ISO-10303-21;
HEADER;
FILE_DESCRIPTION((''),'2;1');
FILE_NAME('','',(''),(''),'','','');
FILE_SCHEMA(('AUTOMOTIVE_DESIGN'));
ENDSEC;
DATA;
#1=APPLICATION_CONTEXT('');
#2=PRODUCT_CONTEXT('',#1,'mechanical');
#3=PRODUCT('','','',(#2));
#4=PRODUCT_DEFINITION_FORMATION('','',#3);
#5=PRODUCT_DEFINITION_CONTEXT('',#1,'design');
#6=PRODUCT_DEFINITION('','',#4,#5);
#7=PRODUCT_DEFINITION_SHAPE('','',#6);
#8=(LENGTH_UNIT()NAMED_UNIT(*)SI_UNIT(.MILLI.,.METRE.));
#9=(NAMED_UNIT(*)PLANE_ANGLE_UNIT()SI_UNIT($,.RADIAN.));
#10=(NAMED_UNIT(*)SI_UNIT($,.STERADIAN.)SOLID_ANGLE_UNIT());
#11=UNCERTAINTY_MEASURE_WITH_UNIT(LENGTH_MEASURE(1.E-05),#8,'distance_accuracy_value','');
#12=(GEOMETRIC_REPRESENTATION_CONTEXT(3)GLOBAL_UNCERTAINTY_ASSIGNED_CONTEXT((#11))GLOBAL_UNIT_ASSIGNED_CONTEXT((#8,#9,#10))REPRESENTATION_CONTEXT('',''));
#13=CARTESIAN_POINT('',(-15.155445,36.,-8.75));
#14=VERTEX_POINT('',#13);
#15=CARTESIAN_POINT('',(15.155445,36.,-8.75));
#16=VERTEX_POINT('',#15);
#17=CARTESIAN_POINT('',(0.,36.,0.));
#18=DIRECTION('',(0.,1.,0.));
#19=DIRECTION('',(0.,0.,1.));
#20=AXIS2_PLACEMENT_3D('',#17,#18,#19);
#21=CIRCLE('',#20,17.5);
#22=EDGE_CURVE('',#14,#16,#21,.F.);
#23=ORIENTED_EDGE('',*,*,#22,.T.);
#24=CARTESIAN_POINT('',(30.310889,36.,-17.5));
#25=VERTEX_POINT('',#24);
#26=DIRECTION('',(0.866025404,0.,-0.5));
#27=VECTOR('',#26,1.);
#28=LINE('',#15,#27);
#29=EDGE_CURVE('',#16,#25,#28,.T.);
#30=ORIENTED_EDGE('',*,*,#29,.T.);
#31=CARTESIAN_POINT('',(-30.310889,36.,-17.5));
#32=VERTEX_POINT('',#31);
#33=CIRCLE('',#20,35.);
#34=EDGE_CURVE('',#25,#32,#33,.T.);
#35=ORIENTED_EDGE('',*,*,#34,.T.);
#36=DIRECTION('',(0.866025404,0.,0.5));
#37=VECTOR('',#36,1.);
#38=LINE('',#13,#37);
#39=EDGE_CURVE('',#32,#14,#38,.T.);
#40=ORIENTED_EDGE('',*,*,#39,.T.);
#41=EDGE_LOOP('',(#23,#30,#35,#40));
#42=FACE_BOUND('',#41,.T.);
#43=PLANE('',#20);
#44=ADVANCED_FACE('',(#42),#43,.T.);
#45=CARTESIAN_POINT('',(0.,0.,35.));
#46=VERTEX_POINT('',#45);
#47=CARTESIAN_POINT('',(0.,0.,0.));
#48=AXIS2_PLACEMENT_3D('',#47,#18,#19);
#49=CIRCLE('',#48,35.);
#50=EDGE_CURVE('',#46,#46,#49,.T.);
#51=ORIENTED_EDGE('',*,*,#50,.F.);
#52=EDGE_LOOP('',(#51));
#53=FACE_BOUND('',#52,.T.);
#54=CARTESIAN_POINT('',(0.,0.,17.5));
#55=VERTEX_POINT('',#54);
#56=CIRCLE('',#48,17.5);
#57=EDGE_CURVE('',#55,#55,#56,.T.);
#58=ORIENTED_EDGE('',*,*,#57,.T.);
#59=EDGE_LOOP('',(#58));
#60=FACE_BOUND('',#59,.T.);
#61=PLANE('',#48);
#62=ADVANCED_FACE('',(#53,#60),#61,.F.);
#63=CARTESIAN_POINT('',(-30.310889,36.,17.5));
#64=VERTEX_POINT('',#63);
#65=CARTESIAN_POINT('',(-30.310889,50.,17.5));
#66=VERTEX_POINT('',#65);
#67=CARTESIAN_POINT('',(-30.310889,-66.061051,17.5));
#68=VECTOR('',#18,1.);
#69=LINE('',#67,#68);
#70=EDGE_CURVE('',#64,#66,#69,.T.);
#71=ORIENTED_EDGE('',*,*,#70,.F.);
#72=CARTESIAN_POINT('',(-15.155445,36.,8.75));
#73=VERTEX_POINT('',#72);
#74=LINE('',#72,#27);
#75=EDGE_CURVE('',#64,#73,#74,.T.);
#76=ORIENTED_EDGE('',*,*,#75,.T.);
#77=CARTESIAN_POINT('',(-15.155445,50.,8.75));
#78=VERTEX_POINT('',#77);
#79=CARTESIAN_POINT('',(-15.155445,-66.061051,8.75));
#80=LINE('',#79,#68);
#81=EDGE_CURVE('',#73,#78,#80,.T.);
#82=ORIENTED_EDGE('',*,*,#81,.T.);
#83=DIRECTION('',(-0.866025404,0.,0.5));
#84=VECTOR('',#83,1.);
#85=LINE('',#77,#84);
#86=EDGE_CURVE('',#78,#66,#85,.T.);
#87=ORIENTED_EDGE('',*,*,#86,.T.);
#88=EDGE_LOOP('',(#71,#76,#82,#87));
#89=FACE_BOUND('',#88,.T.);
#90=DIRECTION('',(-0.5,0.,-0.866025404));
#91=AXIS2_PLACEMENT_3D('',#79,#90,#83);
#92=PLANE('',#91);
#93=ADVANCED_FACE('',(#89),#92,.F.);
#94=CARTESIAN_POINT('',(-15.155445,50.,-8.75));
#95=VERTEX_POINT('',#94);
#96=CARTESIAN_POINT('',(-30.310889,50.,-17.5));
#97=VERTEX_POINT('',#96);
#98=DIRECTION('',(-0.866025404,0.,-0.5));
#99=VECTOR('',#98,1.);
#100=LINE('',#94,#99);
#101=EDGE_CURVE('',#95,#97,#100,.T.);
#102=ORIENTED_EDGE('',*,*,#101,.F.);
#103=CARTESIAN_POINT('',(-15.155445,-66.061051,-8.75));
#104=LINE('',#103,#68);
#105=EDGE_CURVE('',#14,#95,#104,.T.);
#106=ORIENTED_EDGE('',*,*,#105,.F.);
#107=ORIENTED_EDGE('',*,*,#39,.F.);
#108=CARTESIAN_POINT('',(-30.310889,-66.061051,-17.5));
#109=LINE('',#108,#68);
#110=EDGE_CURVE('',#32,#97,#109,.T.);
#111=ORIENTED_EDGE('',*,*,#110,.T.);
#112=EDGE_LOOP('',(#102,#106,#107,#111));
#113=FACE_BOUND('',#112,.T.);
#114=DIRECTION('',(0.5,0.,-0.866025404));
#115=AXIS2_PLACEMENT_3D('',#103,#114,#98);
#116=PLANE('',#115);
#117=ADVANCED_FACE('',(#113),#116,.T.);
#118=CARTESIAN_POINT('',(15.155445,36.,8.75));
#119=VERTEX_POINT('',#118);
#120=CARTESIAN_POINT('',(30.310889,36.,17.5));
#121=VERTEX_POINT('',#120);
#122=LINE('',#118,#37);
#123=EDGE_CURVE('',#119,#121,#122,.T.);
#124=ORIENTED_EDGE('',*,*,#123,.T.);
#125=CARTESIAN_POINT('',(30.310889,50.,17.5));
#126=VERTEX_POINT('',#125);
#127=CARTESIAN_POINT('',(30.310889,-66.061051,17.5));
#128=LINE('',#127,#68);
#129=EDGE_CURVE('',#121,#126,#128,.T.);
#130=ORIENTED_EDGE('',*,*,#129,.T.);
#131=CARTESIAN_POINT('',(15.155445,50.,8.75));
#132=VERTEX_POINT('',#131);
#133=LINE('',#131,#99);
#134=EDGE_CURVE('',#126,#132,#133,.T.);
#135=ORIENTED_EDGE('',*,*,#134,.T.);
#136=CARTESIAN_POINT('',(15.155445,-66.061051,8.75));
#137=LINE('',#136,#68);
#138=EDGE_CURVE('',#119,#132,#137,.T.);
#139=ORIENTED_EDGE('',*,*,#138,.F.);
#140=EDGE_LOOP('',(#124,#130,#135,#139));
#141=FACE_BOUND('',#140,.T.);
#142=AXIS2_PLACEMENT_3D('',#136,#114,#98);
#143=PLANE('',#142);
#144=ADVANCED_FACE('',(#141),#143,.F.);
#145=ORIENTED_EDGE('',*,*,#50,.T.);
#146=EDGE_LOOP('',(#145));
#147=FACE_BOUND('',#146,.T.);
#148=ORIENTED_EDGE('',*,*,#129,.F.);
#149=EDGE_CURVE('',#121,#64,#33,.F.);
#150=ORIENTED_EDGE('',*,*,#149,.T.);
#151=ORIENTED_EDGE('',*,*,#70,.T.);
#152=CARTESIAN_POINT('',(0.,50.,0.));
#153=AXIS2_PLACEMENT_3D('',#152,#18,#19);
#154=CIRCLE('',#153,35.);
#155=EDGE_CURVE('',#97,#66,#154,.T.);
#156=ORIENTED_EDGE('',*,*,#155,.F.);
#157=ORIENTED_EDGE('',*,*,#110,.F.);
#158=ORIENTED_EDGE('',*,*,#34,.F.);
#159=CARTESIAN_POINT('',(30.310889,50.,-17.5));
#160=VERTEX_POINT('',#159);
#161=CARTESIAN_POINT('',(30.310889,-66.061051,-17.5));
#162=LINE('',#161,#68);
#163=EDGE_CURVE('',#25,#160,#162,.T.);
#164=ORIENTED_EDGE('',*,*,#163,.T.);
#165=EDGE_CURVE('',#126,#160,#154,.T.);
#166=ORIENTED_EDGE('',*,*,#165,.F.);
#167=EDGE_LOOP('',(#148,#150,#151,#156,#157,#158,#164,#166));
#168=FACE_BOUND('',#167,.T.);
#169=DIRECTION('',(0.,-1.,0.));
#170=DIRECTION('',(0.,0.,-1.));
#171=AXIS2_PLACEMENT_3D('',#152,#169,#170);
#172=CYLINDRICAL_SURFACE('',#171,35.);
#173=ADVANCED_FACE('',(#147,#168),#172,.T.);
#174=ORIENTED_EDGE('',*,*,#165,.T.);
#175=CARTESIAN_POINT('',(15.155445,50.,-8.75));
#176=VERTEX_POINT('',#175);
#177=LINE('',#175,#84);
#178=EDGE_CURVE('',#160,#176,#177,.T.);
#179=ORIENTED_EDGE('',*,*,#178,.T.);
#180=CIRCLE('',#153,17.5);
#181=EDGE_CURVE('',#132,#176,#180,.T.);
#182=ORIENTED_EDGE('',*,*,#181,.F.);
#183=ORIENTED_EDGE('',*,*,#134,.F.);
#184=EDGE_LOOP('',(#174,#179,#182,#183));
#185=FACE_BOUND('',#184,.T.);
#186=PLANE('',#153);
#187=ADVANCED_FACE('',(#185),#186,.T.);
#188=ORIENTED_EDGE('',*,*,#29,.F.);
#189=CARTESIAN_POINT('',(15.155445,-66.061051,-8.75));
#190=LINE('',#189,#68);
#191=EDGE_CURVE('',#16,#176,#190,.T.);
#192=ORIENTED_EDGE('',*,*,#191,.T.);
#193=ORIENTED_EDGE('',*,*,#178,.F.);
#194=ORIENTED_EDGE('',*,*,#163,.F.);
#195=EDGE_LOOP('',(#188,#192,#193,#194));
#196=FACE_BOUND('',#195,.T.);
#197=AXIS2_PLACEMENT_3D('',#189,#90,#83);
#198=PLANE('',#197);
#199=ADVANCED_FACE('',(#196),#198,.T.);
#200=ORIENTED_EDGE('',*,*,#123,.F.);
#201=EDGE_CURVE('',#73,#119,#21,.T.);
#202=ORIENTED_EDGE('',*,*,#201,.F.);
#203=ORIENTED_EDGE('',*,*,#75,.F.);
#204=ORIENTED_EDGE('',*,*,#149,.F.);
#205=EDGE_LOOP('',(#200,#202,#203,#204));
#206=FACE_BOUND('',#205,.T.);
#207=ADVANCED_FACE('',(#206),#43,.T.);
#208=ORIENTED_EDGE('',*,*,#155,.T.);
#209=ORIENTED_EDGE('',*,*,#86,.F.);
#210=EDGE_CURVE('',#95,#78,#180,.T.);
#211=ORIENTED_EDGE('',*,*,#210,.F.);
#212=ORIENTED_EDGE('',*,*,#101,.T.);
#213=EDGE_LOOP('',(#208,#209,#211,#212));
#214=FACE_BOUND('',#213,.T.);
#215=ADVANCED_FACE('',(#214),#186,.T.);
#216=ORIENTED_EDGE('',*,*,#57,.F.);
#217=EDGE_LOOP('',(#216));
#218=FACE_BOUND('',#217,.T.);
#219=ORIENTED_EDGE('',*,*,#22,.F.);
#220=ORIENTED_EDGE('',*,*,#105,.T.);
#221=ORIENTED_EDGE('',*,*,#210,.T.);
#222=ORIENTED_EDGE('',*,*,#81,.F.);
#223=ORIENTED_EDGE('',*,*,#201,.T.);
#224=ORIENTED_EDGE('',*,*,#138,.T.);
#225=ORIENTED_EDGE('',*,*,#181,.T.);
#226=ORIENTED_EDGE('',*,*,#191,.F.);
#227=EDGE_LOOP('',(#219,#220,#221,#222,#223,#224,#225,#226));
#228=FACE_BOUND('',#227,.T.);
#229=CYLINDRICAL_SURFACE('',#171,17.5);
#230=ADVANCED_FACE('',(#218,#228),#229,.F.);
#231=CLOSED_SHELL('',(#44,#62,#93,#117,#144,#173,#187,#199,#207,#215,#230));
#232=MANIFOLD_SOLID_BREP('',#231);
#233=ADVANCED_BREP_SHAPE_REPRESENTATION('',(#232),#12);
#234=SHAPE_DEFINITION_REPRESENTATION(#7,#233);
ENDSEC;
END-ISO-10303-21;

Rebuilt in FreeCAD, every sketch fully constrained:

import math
import FreeCAD as App
import Part
import Sketcher
from FreeCAD import Vector
Q = App.Units.Quantity

doc = App.newDocument("Part")
params = doc.addObject("Spreadsheet::Sheet", "Params")
for row, (alias, value) in enumerate([
    ("sketch1_diameter", "70 mm"),
    ("sketch1_diameter2", "35 mm"),
    ("pad1_length", "50 mm"),
    ("sketch2_radius", "35 mm"),
    ("sketch2_radius2", "17.5 mm"),
    ("pocket1_length", "14 mm"),
], start=1):
    params.set(f"A{row}", alias)
    params.set(f"B{row}", "=" + value)
    params.setAlias(f"B{row}", alias)

body = doc.addObject("PartDesign::Body", "Body")

sketch1 = body.newObject("Sketcher::SketchObject", "Sketch")
sketch1.AttachmentSupport = (doc.getObject("XZ_Plane"), [""])
sketch1.MapMode = "FlatFace"
sketch1.addGeometry(Part.Circle(Vector(0, 0, 0), Vector(0, 0, 1), 35), False)
sketch1.addGeometry(Part.Circle(Vector(0, 0, 0), Vector(0, 0, 1), 18), False)
sketch1.addConstraint(Sketcher.Constraint("Coincident", 0, 3, -1, 1))
sketch1.addConstraint(Sketcher.Constraint("Coincident", 1, 3, -1, 1))
sketch1.addConstraint(Sketcher.Constraint("Diameter", 0, 70.0))
sketch1.addConstraint(Sketcher.Constraint("Diameter", 1, 35.0))
sketch1.setExpression("Constraints[2]", "Params.sketch1_diameter")
sketch1.setExpression("Constraints[3]", "Params.sketch1_diameter2")
pad1 = body.newObject("PartDesign::Pad", "Pad")
pad1.Profile = sketch1
pad1.setExpression("Length", "Params.pad1_length")
pad1.Reversed = True

sketch2 = body.newObject("Sketcher::SketchObject", "Sketch001")
sketch2.AttachmentSupport = (doc.getObject("XZ_Plane"), [""])
sketch2.MapMode = "FlatFace"
sketch2.AttachmentOffset = App.Placement(Vector(0, 0, -36), App.Rotation())
sketch2.addGeometry(Part.LineSegment(Vector(30, 18, 0), Vector(15, 9, 0)), False)
sketch2.addGeometry(Part.ArcOfCircle(Part.Circle(Vector(0, 0, 0), Vector(0, 0, 1), 18), math.radians(30), math.radians(150)), False)
sketch2.addGeometry(Part.LineSegment(Vector(-15, 9, 0), Vector(-30, 18, 0)), False)
sketch2.addGeometry(Part.ArcOfCircle(Part.Circle(Vector(0, 0, 0), Vector(0, 0, 1), 35), math.radians(30), math.radians(150)), False)
sketch2.addConstraint(Sketcher.Constraint("Coincident", 0, 2, 1, 1))
sketch2.addConstraint(Sketcher.Constraint("Coincident", 1, 2, 2, 1))
sketch2.addConstraint(Sketcher.Constraint("Coincident", 2, 2, 3, 2))
sketch2.addConstraint(Sketcher.Constraint("Coincident", 3, 1, 0, 1))
sketch2.addConstraint(Sketcher.Constraint("Coincident", 1, 3, -1, 1))
sketch2.addConstraint(Sketcher.Constraint("Coincident", 3, 3, -1, 1))
sketch2.addConstraint(Sketcher.Constraint("Horizontal", 0, 2, 1, 2))
sketch2.addConstraint(Sketcher.Constraint("Horizontal", 2, 2, 3, 1))
sketch2.addConstraint(Sketcher.Constraint("Radius", 3, 35.0))
sketch2.addConstraint(Sketcher.Constraint("Radius", 1, 17.5))
sketch2.addConstraint(Sketcher.Constraint("Angle", 0, Q("-150 deg")))
sketch2.addConstraint(Sketcher.Constraint("DistanceY", -1, 1, 2, 2, 17.5))
sketch2.setExpression("Constraints[8]", "Params.sketch2_radius")
sketch2.setExpression("Constraints[9]", "Params.sketch2_radius2")
pocket1 = body.newObject("PartDesign::Pocket", "Pocket")
pocket1.Profile = sketch2
pocket1.setExpression("Length", "Params.pocket1_length")
doc.recompute()

mirrored = body.newObject("PartDesign::Mirrored", "Mirrored")
mirrored.Originals = [pocket1]
mirrored.MirrorPlane = (doc.getObject("XY_Plane"), [""])
body.Tip = mirrored

doc.recompute()
